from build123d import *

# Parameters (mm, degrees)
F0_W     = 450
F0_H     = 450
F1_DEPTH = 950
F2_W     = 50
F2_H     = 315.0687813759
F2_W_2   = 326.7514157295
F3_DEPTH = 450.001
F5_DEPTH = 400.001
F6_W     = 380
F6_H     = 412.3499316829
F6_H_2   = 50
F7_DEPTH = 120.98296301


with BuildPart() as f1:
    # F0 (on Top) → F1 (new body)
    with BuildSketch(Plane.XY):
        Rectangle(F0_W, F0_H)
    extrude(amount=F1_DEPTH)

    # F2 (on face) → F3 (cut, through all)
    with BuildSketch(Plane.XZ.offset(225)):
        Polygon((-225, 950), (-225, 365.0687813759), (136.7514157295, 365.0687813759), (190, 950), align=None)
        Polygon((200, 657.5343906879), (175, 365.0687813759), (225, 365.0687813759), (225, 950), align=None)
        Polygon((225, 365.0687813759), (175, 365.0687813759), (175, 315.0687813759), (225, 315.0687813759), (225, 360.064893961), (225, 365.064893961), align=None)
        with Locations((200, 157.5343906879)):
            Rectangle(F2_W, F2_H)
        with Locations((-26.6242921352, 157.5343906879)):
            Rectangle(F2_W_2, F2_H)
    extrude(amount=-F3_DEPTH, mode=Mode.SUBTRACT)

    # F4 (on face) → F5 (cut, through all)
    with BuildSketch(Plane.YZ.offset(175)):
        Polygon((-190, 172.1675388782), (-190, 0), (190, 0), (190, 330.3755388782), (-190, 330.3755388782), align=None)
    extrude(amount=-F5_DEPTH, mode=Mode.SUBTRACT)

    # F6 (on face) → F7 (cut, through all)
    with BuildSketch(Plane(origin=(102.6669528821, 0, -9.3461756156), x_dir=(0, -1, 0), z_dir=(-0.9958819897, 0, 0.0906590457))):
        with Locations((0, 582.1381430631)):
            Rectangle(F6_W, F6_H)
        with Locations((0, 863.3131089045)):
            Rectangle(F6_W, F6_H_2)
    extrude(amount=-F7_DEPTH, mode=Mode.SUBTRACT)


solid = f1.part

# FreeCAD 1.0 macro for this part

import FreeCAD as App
import Part
import Sketcher

doc = App.newDocument("Part")
body = doc.addObject("PartDesign::Body", "Body")

# Sketch on XY plane
sketch1 = body.newObject("Sketcher::SketchObject", "Sketch")
sketch1.AttachmentSupport = (doc.getObject("XY_Plane"), [""])
sketch1.MapMode = "FlatFace"
sketch1.addGeometry(Part.LineSegment(App.Vector(-225, 225, 0), App.Vector(-225, -225, 0)), False)
sketch1.addGeometry(Part.LineSegment(App.Vector(-225, -225, 0), App.Vector(225, -225, 0)), False)
sketch1.addGeometry(Part.LineSegment(App.Vector(225, -225, 0), App.Vector(225, 225, 0)), False)
sketch1.addGeometry(Part.LineSegment(App.Vector(225, 225, 0), App.Vector(-225, 225, 0)), False)
sketch1.addConstraint(Sketcher.Constraint("Coincident", 0, 2, 1, 1))
sketch1.addConstraint(Sketcher.Constraint("Coincident", 1, 2, 2, 1))
sketch1.addConstraint(Sketcher.Constraint("Coincident", 2, 2, 3, 1))
sketch1.addConstraint(Sketcher.Constraint("Coincident", 3, 2, 0, 1))
sketch1.addConstraint(Sketcher.Constraint("Vertical", 0))
sketch1.addConstraint(Sketcher.Constraint("Horizontal", 1))
sketch1.addConstraint(Sketcher.Constraint("Vertical", 2))
sketch1.addConstraint(Sketcher.Constraint("Horizontal", 3))
sketch1.addConstraint(Sketcher.Constraint("Symmetric", 0, 2, 2, 2, -1, 1))
sketch1.addConstraint(Sketcher.Constraint("Equal", 3, 0))
sketch1.addConstraint(Sketcher.Constraint("DistanceX", 1, 1, 1, 2, 450.0))
pad1 = body.newObject("PartDesign::Pad", "Pad")
pad1.Profile = sketch1
pad1.Length = 950

# Sketch on XZ plane
sketch2 = body.newObject("Sketcher::SketchObject", "Sketch001")
sketch2.AttachmentSupport = (doc.getObject("XZ_Plane"), [""])
sketch2.MapMode = "FlatFace"
sketch2.AttachmentOffset = App.Placement(App.Vector(0, 0, 225), App.Rotation())
sketch2.addGeometry(Part.LineSegment(App.Vector(-225, 950, 0), App.Vector(-225, 365.068781, 0)), False)
sketch2.addGeometry(Part.LineSegment(App.Vector(-225, 365.068781, 0), App.Vector(136.751416, 365.068781, 0)), False)
sketch2.addGeometry(Part.LineSegment(App.Vector(136.751416, 365.068781, 0), App.Vector(190, 950, 0)), False)
sketch2.addGeometry(Part.LineSegment(App.Vector(190, 950, 0), App.Vector(-225, 950, 0)), False)
sketch2.addGeometry(Part.LineSegment(App.Vector(225, 950, 0), App.Vector(175, 365.068781, 0)), False)
sketch2.addGeometry(Part.LineSegment(App.Vector(175, 365.068781, 0), App.Vector(175, 0, 0)), False)
sketch2.addGeometry(Part.LineSegment(App.Vector(175, 0, 0), App.Vector(225, 0, 0)), False)
sketch2.addGeometry(Part.LineSegment(App.Vector(225, 0, 0), App.Vector(225, 950, 0)), False)
sketch2.addGeometry(Part.LineSegment(App.Vector(-190, 315.068781, 0), App.Vector(-190, 0, 0)), False)
sketch2.addGeometry(Part.LineSegment(App.Vector(-190, 0, 0), App.Vector(136.751416, 0, 0)), False)
sketch2.addGeometry(Part.LineSegment(App.Vector(136.751416, 0, 0), App.Vector(136.751416, 315.068781, 0)), False)
sketch2.addGeometry(Part.LineSegment(App.Vector(136.751416, 315.068781, 0), App.Vector(-190, 315.068781, 0)), False)
sketch2.addConstraint(Sketcher.Constraint("Coincident", 0, 2, 1, 1))
sketch2.addConstraint(Sketcher.Constraint("Coincident", 1, 2, 2, 1))
sketch2.addConstraint(Sketcher.Constraint("Coincident", 2, 2, 3, 1))
sketch2.addConstraint(Sketcher.Constraint("Coincident", 3, 2, 0, 1))
sketch2.addConstraint(Sketcher.Constraint("Coincident", 4, 2, 5, 1))
sketch2.addConstraint(Sketcher.Constraint("Coincident", 5, 2, 6, 1))
sketch2.addConstraint(Sketcher.Constraint("Coincident", 6, 2, 7, 1))
sketch2.addConstraint(Sketcher.Constraint("Coincident", 7, 2, 4, 1))
sketch2.addConstraint(Sketcher.Constraint("Coincident", 8, 2, 9, 1))
sketch2.addConstraint(Sketcher.Constraint("Coincident", 9, 2, 10, 1))
sketch2.addConstraint(Sketcher.Constraint("Coincident", 10, 2, 11, 1))
sketch2.addConstraint(Sketcher.Constraint("Coincident", 11, 2, 8, 1))
sketch2.addConstraint(Sketcher.Constraint("Vertical", 0))
sketch2.addConstraint(Sketcher.Constraint("Horizontal", 1))
sketch2.addConstraint(Sketcher.Constraint("Horizontal", 3))
sketch2.addConstraint(Sketcher.Constraint("Vertical", 5))
sketch2.addConstraint(Sketcher.Constraint("Horizontal", 6))
sketch2.addConstraint(Sketcher.Constraint("Vertical", 7))
sketch2.addConstraint(Sketcher.Constraint("Vertical", 8))
sketch2.addConstraint(Sketcher.Constraint("Horizontal", 9))
sketch2.addConstraint(Sketcher.Constraint("Vertical", 10))
sketch2.addConstraint(Sketcher.Constraint("Horizontal", 11))
sketch2.addConstraint(Sketcher.Constraint("Symmetric", 3, 2, 7, 2, -2))
sketch2.addConstraint(Sketcher.Constraint("PointOnObject", 5, 2, -1))
sketch2.addConstraint(Sketcher.Constraint("PointOnObject", 8, 2, -1))
sketch2.addConstraint(Sketcher.Constraint("Horizontal", 1, 2, 4, 2))
sketch2.addConstraint(Sketcher.Constraint("Vertical", 1, 2, 9, 2))
sketch2.addConstraint(Sketcher.Constraint("DistanceX", 3, 2, 3, 1, 415.0))
sketch2.addConstraint(Sketcher.Constraint("DistanceX", 6, 1, 6, 2, 50.0))
sketch2.addConstraint(Sketcher.Constraint("DistanceY", 7, 1, 7, 2, 950.0))
sketch2.addConstraint(Sketcher.Constraint("DistanceX", 0, 2, -1, 1, 225.0))
sketch2.addConstraint(Sketcher.Constraint("DistanceX", 8, 2, -1, 1, 190.0))
sketch2.addConstraint(Sketcher.Constraint("DistanceY", 10, 2, 1, 2, 50.0))
sketch2.addConstraint(Sketcher.Constraint("DistanceY", 0, 2, 0, 1, 584.931219))
sketch2.addConstraint(Sketcher.Constraint("Distance", 2, 587.349932))
pocket1 = body.newObject("PartDesign::Pocket", "Pocket")
pocket1.Profile = sketch2
pocket1.Type = "ThroughAll"

# Sketch on YZ plane
sketch3 = body.newObject("Sketcher::SketchObject", "Sketch002")
sketch3.AttachmentSupport = (doc.getObject("YZ_Plane"), [""])
sketch3.MapMode = "FlatFace"
sketch3.AttachmentOffset = App.Placement(App.Vector(0, 0, 175), App.Rotation())
sketch3.addGeometry(Part.LineSegment(App.Vector(-190, 0, 0), App.Vector(190, 0, 0)), False)
sketch3.addGeometry(Part.LineSegment(App.Vector(190, 0, 0), App.Vector(190, 330.375539, 0)), False)
sketch3.addGeometry(Part.LineSegment(App.Vector(190, 330.375539, 0), App.Vector(-190, 330.375539, 0)), False)
sketch3.addGeometry(Part.LineSegment(App.Vector(-190, 330.375539, 0), App.Vector(-190, 0, 0)), False)
sketch3.addConstraint(Sketcher.Constraint("Coincident", 0, 2, 1, 1))
sketch3.addConstraint(Sketcher.Constraint("Coincident", 1, 2, 2, 1))
sketch3.addConstraint(Sketcher.Constraint("Coincident", 2, 2, 3, 1))
sketch3.addConstraint(Sketcher.Constraint("Coincident", 3, 2, 0, 1))
sketch3.addConstraint(Sketcher.Constraint("Horizontal", 0))
sketch3.addConstraint(Sketcher.Constraint("Vertical", 1))
sketch3.addConstraint(Sketcher.Constraint("Horizontal", 2))
sketch3.addConstraint(Sketcher.Constraint("Vertical", 3))
sketch3.addConstraint(Sketcher.Constraint("Symmetric", 0, 2, 3, 2, -1, 1))
sketch3.addConstraint(Sketcher.Constraint("DistanceX", 0, 1, 0, 2, 380.0))
sketch3.addConstraint(Sketcher.Constraint("DistanceY", 1, 1, 1, 2, 330.375539))
pocket2 = body.newObject("PartDesign::Pocket", "Pocket001")
pocket2.Profile = sketch3
pocket2.Type = "ThroughAll"

# Sketch on an angled plane
sketch4 = body.newObject("Sketcher::SketchObject", "Sketch003")
sketch4.Placement = App.Placement(App.Vector(102.666953, 0, -9.346176), App.Rotation(App.Vector(0, -1, 0), App.Vector(0.090659046, 0, 0.99588199), App.Vector(-0.99588199, 0, 0.090659046), "ZXY"))
sketch4.addGeometry(Part.LineSegment(App.Vector(-190, 788.313109, 0), App.Vector(-190, 375.963177, 0)), False)
sketch4.addGeometry(Part.LineSegment(App.Vector(-190, 375.963177, 0), App.Vector(190, 375.963177, 0)), False)
sketch4.addGeometry(Part.LineSegment(App.Vector(190, 375.963177, 0), App.Vector(190, 788.313109, 0)), False)
sketch4.addGeometry(Part.LineSegment(App.Vector(190, 788.313109, 0), App.Vector(-190, 788.313109, 0)), False)
sketch4.addGeometry(Part.LineSegment(App.Vector(-190, 888.313109, 0), App.Vector(-190, 838.313109, 0)), False)
sketch4.addGeometry(Part.LineSegment(App.Vector(-190, 838.313109, 0), App.Vector(190, 838.313109, 0)), False)
sketch4.addGeometry(Part.LineSegment(App.Vector(190, 838.313109, 0), App.Vector(190, 888.313109, 0)), False)
sketch4.addGeometry(Part.LineSegment(App.Vector(190, 888.313109, 0), App.Vector(-190, 888.313109, 0)), False)
sketch4.addConstraint(Sketcher.Constraint("Coincident", 0, 2, 1, 1))
sketch4.addConstraint(Sketcher.Constraint("Coincident", 1, 2, 2, 1))
sketch4.addConstraint(Sketcher.Constraint("Coincident", 2, 2, 3, 1))
sketch4.addConstraint(Sketcher.Constraint("Coincident", 3, 2, 0, 1))
sketch4.addConstraint(Sketcher.Constraint("Coincident", 4, 2, 5, 1))
sketch4.addConstraint(Sketcher.Constraint("Coincident", 5, 2, 6, 1))
sketch4.addConstraint(Sketcher.Constraint("Coincident", 6, 2, 7, 1))
sketch4.addConstraint(Sketcher.Constraint("Coincident", 7, 2, 4, 1))
sketch4.addConstraint(Sketcher.Constraint("Vertical", 0))
sketch4.addConstraint(Sketcher.Constraint("Horizontal", 1))
sketch4.addConstraint(Sketcher.Constraint("Vertical", 2))
sketch4.addConstraint(Sketcher.Constraint("Horizontal", 3))
sketch4.addConstraint(Sketcher.Constraint("Vertical", 4))
sketch4.addConstraint(Sketcher.Constraint("Horizontal", 5))
sketch4.addConstraint(Sketcher.Constraint("Vertical", 6))
sketch4.addConstraint(Sketcher.Constraint("Horizontal", 7))
sketch4.addConstraint(Sketcher.Constraint("Vertical", 3, 2, 4, 2))
sketch4.addConstraint(Sketcher.Constraint("Vertical", 2, 2, 5, 2))
sketch4.addConstraint(Sketcher.Constraint("DistanceX", 1, 1, 1, 2, 380.0))
sketch4.addConstraint(Sketcher.Constraint("DistanceY", 4, 2, 4, 1, 50.0))
sketch4.addConstraint(Sketcher.Constraint("DistanceX", 0, 2, -1, 1, 190.0))
sketch4.addConstraint(Sketcher.Constraint("DistanceY", 3, 2, 4, 2, 50.0))
sketch4.addConstraint(Sketcher.Constraint("DistanceY", 0, 2, 0, 1, 412.349932))
sketch4.addConstraint(Sketcher.Constraint("DistanceY", -1, 1, 2, 2, 788.313109))
pocket3 = body.newObject("PartDesign::Pocket", "Pocket002")
pocket3.Profile = sketch4
pocket3.Type = "ThroughAll"

doc.recompute()
